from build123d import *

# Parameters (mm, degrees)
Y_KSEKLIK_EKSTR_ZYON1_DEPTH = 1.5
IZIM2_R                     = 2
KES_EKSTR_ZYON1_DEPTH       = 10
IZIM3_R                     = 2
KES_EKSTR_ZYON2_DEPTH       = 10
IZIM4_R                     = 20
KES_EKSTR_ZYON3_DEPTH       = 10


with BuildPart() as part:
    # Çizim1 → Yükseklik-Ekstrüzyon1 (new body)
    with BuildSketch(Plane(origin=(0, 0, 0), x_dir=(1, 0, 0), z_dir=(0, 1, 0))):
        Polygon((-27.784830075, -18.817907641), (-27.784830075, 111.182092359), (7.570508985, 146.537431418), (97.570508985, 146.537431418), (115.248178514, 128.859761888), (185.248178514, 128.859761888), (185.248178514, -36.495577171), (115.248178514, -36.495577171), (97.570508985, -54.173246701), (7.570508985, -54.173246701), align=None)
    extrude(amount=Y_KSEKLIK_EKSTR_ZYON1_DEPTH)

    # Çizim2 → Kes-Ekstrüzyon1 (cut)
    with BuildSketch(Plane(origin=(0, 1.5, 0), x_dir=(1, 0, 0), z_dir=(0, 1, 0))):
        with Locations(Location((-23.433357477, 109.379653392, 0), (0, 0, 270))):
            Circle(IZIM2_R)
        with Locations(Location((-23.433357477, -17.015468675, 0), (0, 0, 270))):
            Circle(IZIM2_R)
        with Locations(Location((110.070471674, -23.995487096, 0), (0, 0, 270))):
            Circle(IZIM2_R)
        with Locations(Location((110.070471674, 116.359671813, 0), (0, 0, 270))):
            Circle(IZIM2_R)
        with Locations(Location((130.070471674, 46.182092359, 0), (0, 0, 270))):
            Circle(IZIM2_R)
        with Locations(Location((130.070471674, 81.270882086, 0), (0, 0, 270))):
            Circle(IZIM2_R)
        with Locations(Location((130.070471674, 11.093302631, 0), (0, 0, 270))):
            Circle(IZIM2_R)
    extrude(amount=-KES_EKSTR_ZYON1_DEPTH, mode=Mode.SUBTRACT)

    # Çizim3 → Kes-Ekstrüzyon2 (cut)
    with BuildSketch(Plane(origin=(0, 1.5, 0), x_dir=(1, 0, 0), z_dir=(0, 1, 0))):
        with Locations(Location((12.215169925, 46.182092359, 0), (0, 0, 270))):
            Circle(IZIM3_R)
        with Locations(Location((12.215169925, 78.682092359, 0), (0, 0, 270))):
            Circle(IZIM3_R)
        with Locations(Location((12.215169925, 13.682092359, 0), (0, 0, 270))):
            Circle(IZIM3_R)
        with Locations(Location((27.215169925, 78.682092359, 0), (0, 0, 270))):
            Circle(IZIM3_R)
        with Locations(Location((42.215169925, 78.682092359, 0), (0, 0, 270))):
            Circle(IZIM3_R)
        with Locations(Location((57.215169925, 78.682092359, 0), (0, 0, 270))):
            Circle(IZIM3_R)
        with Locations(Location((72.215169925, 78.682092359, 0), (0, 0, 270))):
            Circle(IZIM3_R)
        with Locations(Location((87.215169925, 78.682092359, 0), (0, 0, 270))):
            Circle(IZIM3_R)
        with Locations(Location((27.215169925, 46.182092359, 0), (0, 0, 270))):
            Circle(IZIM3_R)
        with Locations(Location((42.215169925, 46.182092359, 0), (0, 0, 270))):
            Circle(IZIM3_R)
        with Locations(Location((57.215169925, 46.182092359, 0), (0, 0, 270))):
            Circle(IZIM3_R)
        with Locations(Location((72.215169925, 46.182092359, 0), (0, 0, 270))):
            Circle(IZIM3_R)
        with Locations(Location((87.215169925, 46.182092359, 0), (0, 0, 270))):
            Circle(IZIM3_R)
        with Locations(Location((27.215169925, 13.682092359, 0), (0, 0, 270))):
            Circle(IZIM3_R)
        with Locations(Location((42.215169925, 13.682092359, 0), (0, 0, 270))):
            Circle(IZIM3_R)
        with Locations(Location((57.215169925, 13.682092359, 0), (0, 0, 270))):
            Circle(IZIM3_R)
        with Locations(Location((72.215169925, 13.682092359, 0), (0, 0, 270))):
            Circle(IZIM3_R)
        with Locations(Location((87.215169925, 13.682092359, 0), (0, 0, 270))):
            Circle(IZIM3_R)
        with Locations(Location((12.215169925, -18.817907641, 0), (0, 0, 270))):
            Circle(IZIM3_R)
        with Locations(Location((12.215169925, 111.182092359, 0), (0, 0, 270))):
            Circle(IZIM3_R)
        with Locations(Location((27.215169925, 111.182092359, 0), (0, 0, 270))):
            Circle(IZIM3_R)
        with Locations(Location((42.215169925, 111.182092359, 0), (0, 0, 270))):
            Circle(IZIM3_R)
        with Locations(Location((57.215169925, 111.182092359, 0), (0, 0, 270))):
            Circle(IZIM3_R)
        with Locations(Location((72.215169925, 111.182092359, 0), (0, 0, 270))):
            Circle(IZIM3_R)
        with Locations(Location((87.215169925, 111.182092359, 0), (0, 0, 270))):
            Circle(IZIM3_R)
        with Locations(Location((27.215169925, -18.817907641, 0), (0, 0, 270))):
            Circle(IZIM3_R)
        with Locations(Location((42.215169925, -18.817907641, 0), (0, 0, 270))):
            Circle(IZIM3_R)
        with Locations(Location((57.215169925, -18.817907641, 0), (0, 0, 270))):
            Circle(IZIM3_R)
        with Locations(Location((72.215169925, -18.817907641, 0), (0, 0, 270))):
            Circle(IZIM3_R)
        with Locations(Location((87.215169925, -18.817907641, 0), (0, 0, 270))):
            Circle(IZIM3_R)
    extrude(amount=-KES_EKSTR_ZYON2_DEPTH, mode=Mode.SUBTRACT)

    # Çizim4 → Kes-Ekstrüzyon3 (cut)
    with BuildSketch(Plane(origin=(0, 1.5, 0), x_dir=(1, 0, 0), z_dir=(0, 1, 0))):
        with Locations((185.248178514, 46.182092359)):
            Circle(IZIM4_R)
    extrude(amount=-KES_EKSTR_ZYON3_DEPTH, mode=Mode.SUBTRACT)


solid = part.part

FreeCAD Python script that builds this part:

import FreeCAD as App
import Part
import Sketcher

V = App.Vector

doc = App.newDocument("Part")
body = doc.addObject("PartDesign::Body", "Body")

sketch1 = doc.addObject("Sketcher::SketchObject", "Sketch")
body.addObject(sketch1)
sketch1.AttachmentSupport = (doc.XZ_Plane, [""])
sketch1.MapMode = "FlatFace"
sketch1.addGeometry([
    Part.LineSegment(V(-28, -111, 0), V(-28, 19, 0)),
    Part.LineSegment(V(-28, 19, 0), V(8, 54, 0)),
    Part.LineSegment(V(8, 54, 0), V(98, 54, 0)),
    Part.LineSegment(V(98, 54, 0), V(115, 36, 0)),
    Part.LineSegment(V(115, 36, 0), V(185, 36, 0)),
    Part.LineSegment(V(185, 36, 0), V(185, -129, 0)),
    Part.LineSegment(V(185, -129, 0), V(115, -129, 0)),
    Part.LineSegment(V(115, -129, 0), V(98, -147, 0)),
    Part.LineSegment(V(98, -147, 0), V(8, -147, 0)),
    Part.LineSegment(V(8, -147, 0), V(-28, -111, 0)),
], False)
sketch1.addConstraint([
    Sketcher.Constraint("Coincident", 0, 2, 1, 1),
    Sketcher.Constraint("Coincident", 1, 2, 2, 1),
    Sketcher.Constraint("Coincident", 2, 2, 3, 1),
    Sketcher.Constraint("Coincident", 3, 2, 4, 1),
    Sketcher.Constraint("Coincident", 4, 2, 5, 1),
    Sketcher.Constraint("Coincident", 5, 2, 6, 1),
    Sketcher.Constraint("Coincident", 6, 2, 7, 1),
    Sketcher.Constraint("Coincident", 7, 2, 8, 1),
    Sketcher.Constraint("Coincident", 8, 2, 9, 1),
    Sketcher.Constraint("Coincident", 9, 2, 0, 1),
    Sketcher.Constraint("Vertical", 0),
    Sketcher.Constraint("Horizontal", 2),
    Sketcher.Constraint("Horizontal", 4),
    Sketcher.Constraint("Vertical", 5),
    Sketcher.Constraint("Horizontal", 6),
    Sketcher.Constraint("Horizontal", 8),
    Sketcher.Constraint("Perpendicular", 1, 3),
    Sketcher.Constraint("Perpendicular", 3, 7),
    Sketcher.Constraint("Perpendicular", 7, 9),
    Sketcher.Constraint("Vertical", 3, 2, 6, 2),
    Sketcher.Constraint("Vertical", 2, 2, 7, 2),
    Sketcher.Constraint("Vertical", 1, 2, 8, 2),
    Sketcher.Constraint("Equal", 3, 7),
    Sketcher.Constraint("DistanceX", 2, 1, 2, 2, 90.0),
    Sketcher.Constraint("DistanceX", 4, 1, 4, 2, 70.0),
    Sketcher.Constraint("DistanceY", 0, 1, 0, 2, 130.0),
    Sketcher.Constraint("Distance", 1, 50.0),
    Sketcher.Constraint("Distance", 3, 25.0),
    Sketcher.Constraint("DistanceX", 0, 2, -1, 1, 27.78483),
    Sketcher.Constraint("DistanceY", 5, 2, -1, 1, 128.859762),
])
pad1 = doc.addObject("PartDesign::Pad", "Pad")
body.addObject(pad1)
pad1.Profile = sketch1
pad1.Length = 1.5
pad1.Reversed = True

sketch2 = doc.addObject("Sketcher::SketchObject", "Sketch001")
body.addObject(sketch2)
sketch2.AttachmentSupport = (doc.XZ_Plane, [""])
sketch2.MapMode = "FlatFace"
sketch2.AttachmentOffset = App.Placement(V(0, 0, -1.5), App.Rotation())
sketch2.addGeometry([
    Part.Circle(V(-23.4, -109.4, 0), V(0, 0, 1), 2),
    Part.Circle(V(-23.4, 17, 0), V(0, 0, 1), 2),
    Part.Circle(V(110.1, 24, 0), V(0, 0, 1), 2),
    Part.Circle(V(110.1, -116.4, 0), V(0, 0, 1), 2),
    Part.Circle(V(130.1, -46.2, 0), V(0, 0, 1), 2),
    Part.Circle(V(130.1, -81.3, 0), V(0, 0, 1), 2),
    Part.Circle(V(130.1, -11.1, 0), V(0, 0, 1), 2),
], False)
sketch2.addConstraint([
    Sketcher.Constraint("Equal", 0, 1),
    Sketcher.Constraint("Equal", 1, 2),
    Sketcher.Constraint("Equal", 2, 3),
    Sketcher.Constraint("Equal", 3, 4),
    Sketcher.Constraint("Equal", 4, 5),
    Sketcher.Constraint("Equal", 5, 6),
    Sketcher.Constraint("Vertical", 0, 3, 1, 3),
    Sketcher.Constraint("Vertical", 2, 3, 3, 3),
    Sketcher.Constraint("Vertical", 4, 3, 5, 3),
    Sketcher.Constraint("Vertical", 5, 3, 6, 3),
    Sketcher.Constraint("Diameter", 0, 4.0),
    Sketcher.Constraint("DistanceX", 3, 3, 4, 3, 20.0),
    Sketcher.Constraint("DistanceY", -1, 1, 1, 3, 17.015469),
    Sketcher.Constraint("DistanceX", -1, 1, 2, 3, 110.070472),
    Sketcher.Constraint("DistanceY", 3, 3, -1, 1, 116.359672),
    Sketcher.Constraint("DistanceX", 1, 3, 2, 3, 133.503829),
    Sketcher.Constraint("DistanceY", 1, 3, 2, 3, 6.980018),
    Sketcher.Constraint("DistanceY", 0, 3, 2, 3, 133.37514),
    Sketcher.Constraint("DistanceY", 3, 3, 4, 3, 70.177579),
    Sketcher.Constraint("DistanceY", 5, 3, 4, 3, 35.08879),
    Sketcher.Constraint("DistanceY", 4, 3, 6, 3, 35.08879),
])
pocket1 = doc.addObject("PartDesign::Pocket", "Pocket")
body.addObject(pocket1)
pocket1.Profile = sketch2
pocket1.Length = 10
pocket1.Reversed = True

sketch3 = doc.addObject("Sketcher::SketchObject", "Sketch002")
body.addObject(sketch3)
sketch3.AttachmentSupport = (doc.XZ_Plane, [""])
sketch3.MapMode = "FlatFace"
sketch3.AttachmentOffset = App.Placement(V(0, 0, -1.5), App.Rotation())
sketch3.addGeometry([
    Part.Circle(V(12.2, -46.2, 0), V(0, 0, 1), 2),
    Part.Circle(V(12.2, -78.7, 0), V(0, 0, 1), 2),
    Part.Circle(V(12.2, -13.7, 0), V(0, 0, 1), 2),
    Part.Circle(V(27.2, -78.7, 0), V(0, 0, 1), 2),
    Part.Circle(V(42.2, -78.7, 0), V(0, 0, 1), 2),
    Part.Circle(V(57.2, -78.7, 0), V(0, 0, 1), 2),
    Part.Circle(V(72.2, -78.7, 0), V(0, 0, 1), 2),
    Part.Circle(V(87.2, -78.7, 0), V(0, 0, 1), 2),
    Part.Circle(V(27.2, -46.2, 0), V(0, 0, 1), 2),
    Part.Circle(V(42.2, -46.2, 0), V(0, 0, 1), 2),
    Part.Circle(V(57.2, -46.2, 0), V(0, 0, 1), 2),
    Part.Circle(V(72.2, -46.2, 0), V(0, 0, 1), 2),
    Part.Circle(V(87.2, -46.2, 0), V(0, 0, 1), 2),
    Part.Circle(V(27.2, -13.7, 0), V(0, 0, 1), 2),
    Part.Circle(V(42.2, -13.7, 0), V(0, 0, 1), 2),
    Part.Circle(V(57.2, -13.7, 0), V(0, 0, 1), 2),
    Part.Circle(V(72.2, -13.7, 0), V(0, 0, 1), 2),
    Part.Circle(V(87.2, -13.7, 0), V(0, 0, 1), 2),
    Part.Circle(V(12.2, 18.8, 0), V(0, 0, 1), 2),
    Part.Circle(V(12.2, -111.2, 0), V(0, 0, 1), 2),
    Part.Circle(V(27.2, -111.2, 0), V(0, 0, 1), 2),
    Part.Circle(V(42.2, -111.2, 0), V(0, 0, 1), 2),
    Part.Circle(V(57.2, -111.2, 0), V(0, 0, 1), 2),
    Part.Circle(V(72.2, -111.2, 0), V(0, 0, 1), 2),
    Part.Circle(V(87.2, -111.2, 0), V(0, 0, 1), 2),
    Part.Circle(V(27.2, 18.8, 0), V(0, 0, 1), 2),
    Part.Circle(V(42.2, 18.8, 0), V(0, 0, 1), 2),
    Part.Circle(V(57.2, 18.8, 0), V(0, 0, 1), 2),
    Part.Circle(V(72.2, 18.8, 0), V(0, 0, 1), 2),
    Part.Circle(V(87.2, 18.8, 0), V(0, 0, 1), 2),
], False)
sketch3.addConstraint([
    Sketcher.Constraint("Equal", 0, 1),
    Sketcher.Constraint("Equal", 1, 2),
    Sketcher.Constraint("Equal", 2, 3),
    Sketcher.Constraint("Equal", 3, 4),
    Sketcher.Constraint("Equal", 4, 5),
    Sketcher.Constraint("Equal", 5, 6),
    Sketcher.Constraint("Equal", 6, 7),
    Sketcher.Constraint("Equal", 7, 8),
    Sketcher.Constraint("Equal", 8, 9),
    Sketcher.Constraint("Equal", 9, 10),
    Sketcher.Constraint("Equal", 10, 11),
    Sketcher.Constraint("Equal", 11, 12),
    Sketcher.Constraint("Equal", 12, 13),
    Sketcher.Constraint("Equal", 13, 14),
    Sketcher.Constraint("Equal", 14, 15),
    Sketcher.Constraint("Equal", 15, 16),
    Sketcher.Constraint("Equal", 16, 17),
    Sketcher.Constraint("Equal", 17, 18),
    Sketcher.Constraint("Equal", 18, 19),
    Sketcher.Constraint("Equal", 19, 20),
    Sketcher.Constraint("Equal", 20, 21),
    Sketcher.Constraint("Equal", 21, 22),
    Sketcher.Constraint("Equal", 22, 23),
    Sketcher.Constraint("Equal", 23, 24),
    Sketcher.Constraint("Equal", 24, 25),
    Sketcher.Constraint("Equal", 25, 26),
    Sketcher.Constraint("Equal", 26, 27),
    Sketcher.Constraint("Equal", 27, 28),
    Sketcher.Constraint("Equal", 28, 29),
    Sketcher.Constraint("Horizontal", 1, 3, 3, 3),
    Sketcher.Constraint("Horizontal", 3, 3, 4, 3),
    Sketcher.Constraint("Horizontal", 4, 3, 5, 3),
    Sketcher.Constraint("Horizontal", 5, 3, 6, 3),
    Sketcher.Constraint("Horizontal", 6, 3, 7, 3),
    Sketcher.Constraint("Horizontal", 0, 3, 8, 3),
    Sketcher.Constraint("Horizontal", 8, 3, 9, 3),
    Sketcher.Constraint("Horizontal", 9, 3, 10, 3),
    Sketcher.Constraint("Horizontal", 10, 3, 11, 3),
    Sketcher.Constraint("Horizontal", 11, 3, 12, 3),
    Sketcher.Constraint("Horizontal", 2, 3, 13, 3),
    Sketcher.Constraint("Horizontal", 13, 3, 14, 3),
    Sketcher.Constraint("Horizontal", 14, 3, 15, 3),
    Sketcher.Constraint("Horizontal", 15, 3, 16, 3),
    Sketcher.Constraint("Horizontal", 16, 3, 17, 3),
    Sketcher.Constraint("Horizontal", 19, 3, 20, 3),
    Sketcher.Constraint("Horizontal", 20, 3, 21, 3),
    Sketcher.Constraint("Horizontal", 21, 3, 22, 3),
    Sketcher.Constraint("Horizontal", 22, 3, 23, 3),
    Sketcher.Constraint("Horizontal", 23, 3, 24, 3),
    Sketcher.Constraint("Horizontal", 18, 3, 25, 3),
    Sketcher.Constraint("Horizontal", 25, 3, 26, 3),
    Sketcher.Constraint("Horizontal", 26, 3, 27, 3),
    Sketcher.Constraint("Horizontal", 27, 3, 28, 3),
    Sketcher.Constraint("Horizontal", 28, 3, 29, 3),
    Sketcher.Constraint("Vertical", 0, 3, 1, 3),
    Sketcher.Constraint("Vertical", 1, 3, 2, 3),
    Sketcher.Constraint("Vertical", 3, 3, 8, 3),
    Sketcher.Constraint("Vertical", 4, 3, 9, 3),
    Sketcher.Constraint("Vertical", 5, 3, 10, 3),
    Sketcher.Constraint("Vertical", 6, 3, 11, 3),
    Sketcher.Constraint("Vertical", 7, 3, 12, 3),
    Sketcher.Constraint("Vertical", 8, 3, 13, 3),
    Sketcher.Constraint("Vertical", 9, 3, 14, 3),
    Sketcher.Constraint("Vertical", 10, 3, 15, 3),
    Sketcher.Constraint("Vertical", 11, 3, 16, 3),
    Sketcher.Constraint("Vertical", 12, 3, 17, 3),
    Sketcher.Constraint("Vertical", 2, 3, 18, 3),
    Sketcher.Constraint("Vertical", 18, 3, 19, 3),
    Sketcher.Constraint("Vertical", 13, 3, 20, 3),
    Sketcher.Constraint("Vertical", 14, 3, 21, 3),
    Sketcher.Constraint("Vertical", 15, 3, 22, 3),
    Sketcher.Constraint("Vertical", 16, 3, 23, 3),
    Sketcher.Constraint("Vertical", 17, 3, 24, 3),
    Sketcher.Constraint("Vertical", 20, 3, 25, 3),
    Sketcher.Constraint("Vertical", 21, 3, 26, 3),
    Sketcher.Constraint("Vertical", 22, 3, 27, 3),
    Sketcher.Constraint("Vertical", 23, 3, 28, 3),
    Sketcher.Constraint("Vertical", 24, 3, 29, 3),
    Sketcher.Constraint("Diameter", 0, 4.0),
    Sketcher.Constraint("DistanceY", 1, 3, 2, 3, 65.0),
    Sketcher.Constraint("DistanceX", 1, 3, 3, 3, 15.0),
    Sketcher.Constraint("DistanceX", 3, 3, 4, 3, 15.0),
    Sketcher.Constraint("DistanceX", 4, 3, 5, 3, 15.0),
    Sketcher.Constraint("DistanceX", 5, 3, 6, 3, 15.0),
    Sketcher.Constraint("DistanceX", 6, 3, 7, 3, 15.0),
    Sketcher.Constraint("DistanceY", 0, 3, 18, 3, 65.0),
    Sketcher.Constraint("DistanceY", 19, 3, 0, 3, 65.0),
    Sketcher.Constraint("DistanceY", 1, 3, 0, 3, 32.5),
    Sketcher.Constraint("DistanceX", -1, 1, 0, 3, 12.21517),
    Sketcher.Constraint("DistanceY", 0, 3, -1, 1, 46.182092),
])
pocket2 = doc.addObject("PartDesign::Pocket", "Pocket001")
body.addObject(pocket2)
pocket2.Profile = sketch3
pocket2.Length = 10
pocket2.Reversed = True

sketch4 = doc.addObject("Sketcher::SketchObject", "Sketch003")
body.addObject(sketch4)
sketch4.AttachmentSupport = (doc.XZ_Plane, [""])
sketch4.MapMode = "FlatFace"
sketch4.AttachmentOffset = App.Placement(V(0, 0, -1.5), App.Rotation())
sketch4.addGeometry(Part.Circle(V(185, -46, 0), V(0, 0, 1), 20), False)
sketch4.addConstraint([
    Sketcher.Constraint("Diameter", 0, 40.0),
    Sketcher.Constraint("DistanceX", -1, 1, 0, 3, 185.248179),
    Sketcher.Constraint("DistanceY", 0, 3, -1, 1, 46.182092),
])
pocket3 = doc.addObject("PartDesign::Pocket", "Pocket002")
body.addObject(pocket3)
pocket3.Profile = sketch4
pocket3.Length = 10
pocket3.Reversed = True

doc.recompute()
